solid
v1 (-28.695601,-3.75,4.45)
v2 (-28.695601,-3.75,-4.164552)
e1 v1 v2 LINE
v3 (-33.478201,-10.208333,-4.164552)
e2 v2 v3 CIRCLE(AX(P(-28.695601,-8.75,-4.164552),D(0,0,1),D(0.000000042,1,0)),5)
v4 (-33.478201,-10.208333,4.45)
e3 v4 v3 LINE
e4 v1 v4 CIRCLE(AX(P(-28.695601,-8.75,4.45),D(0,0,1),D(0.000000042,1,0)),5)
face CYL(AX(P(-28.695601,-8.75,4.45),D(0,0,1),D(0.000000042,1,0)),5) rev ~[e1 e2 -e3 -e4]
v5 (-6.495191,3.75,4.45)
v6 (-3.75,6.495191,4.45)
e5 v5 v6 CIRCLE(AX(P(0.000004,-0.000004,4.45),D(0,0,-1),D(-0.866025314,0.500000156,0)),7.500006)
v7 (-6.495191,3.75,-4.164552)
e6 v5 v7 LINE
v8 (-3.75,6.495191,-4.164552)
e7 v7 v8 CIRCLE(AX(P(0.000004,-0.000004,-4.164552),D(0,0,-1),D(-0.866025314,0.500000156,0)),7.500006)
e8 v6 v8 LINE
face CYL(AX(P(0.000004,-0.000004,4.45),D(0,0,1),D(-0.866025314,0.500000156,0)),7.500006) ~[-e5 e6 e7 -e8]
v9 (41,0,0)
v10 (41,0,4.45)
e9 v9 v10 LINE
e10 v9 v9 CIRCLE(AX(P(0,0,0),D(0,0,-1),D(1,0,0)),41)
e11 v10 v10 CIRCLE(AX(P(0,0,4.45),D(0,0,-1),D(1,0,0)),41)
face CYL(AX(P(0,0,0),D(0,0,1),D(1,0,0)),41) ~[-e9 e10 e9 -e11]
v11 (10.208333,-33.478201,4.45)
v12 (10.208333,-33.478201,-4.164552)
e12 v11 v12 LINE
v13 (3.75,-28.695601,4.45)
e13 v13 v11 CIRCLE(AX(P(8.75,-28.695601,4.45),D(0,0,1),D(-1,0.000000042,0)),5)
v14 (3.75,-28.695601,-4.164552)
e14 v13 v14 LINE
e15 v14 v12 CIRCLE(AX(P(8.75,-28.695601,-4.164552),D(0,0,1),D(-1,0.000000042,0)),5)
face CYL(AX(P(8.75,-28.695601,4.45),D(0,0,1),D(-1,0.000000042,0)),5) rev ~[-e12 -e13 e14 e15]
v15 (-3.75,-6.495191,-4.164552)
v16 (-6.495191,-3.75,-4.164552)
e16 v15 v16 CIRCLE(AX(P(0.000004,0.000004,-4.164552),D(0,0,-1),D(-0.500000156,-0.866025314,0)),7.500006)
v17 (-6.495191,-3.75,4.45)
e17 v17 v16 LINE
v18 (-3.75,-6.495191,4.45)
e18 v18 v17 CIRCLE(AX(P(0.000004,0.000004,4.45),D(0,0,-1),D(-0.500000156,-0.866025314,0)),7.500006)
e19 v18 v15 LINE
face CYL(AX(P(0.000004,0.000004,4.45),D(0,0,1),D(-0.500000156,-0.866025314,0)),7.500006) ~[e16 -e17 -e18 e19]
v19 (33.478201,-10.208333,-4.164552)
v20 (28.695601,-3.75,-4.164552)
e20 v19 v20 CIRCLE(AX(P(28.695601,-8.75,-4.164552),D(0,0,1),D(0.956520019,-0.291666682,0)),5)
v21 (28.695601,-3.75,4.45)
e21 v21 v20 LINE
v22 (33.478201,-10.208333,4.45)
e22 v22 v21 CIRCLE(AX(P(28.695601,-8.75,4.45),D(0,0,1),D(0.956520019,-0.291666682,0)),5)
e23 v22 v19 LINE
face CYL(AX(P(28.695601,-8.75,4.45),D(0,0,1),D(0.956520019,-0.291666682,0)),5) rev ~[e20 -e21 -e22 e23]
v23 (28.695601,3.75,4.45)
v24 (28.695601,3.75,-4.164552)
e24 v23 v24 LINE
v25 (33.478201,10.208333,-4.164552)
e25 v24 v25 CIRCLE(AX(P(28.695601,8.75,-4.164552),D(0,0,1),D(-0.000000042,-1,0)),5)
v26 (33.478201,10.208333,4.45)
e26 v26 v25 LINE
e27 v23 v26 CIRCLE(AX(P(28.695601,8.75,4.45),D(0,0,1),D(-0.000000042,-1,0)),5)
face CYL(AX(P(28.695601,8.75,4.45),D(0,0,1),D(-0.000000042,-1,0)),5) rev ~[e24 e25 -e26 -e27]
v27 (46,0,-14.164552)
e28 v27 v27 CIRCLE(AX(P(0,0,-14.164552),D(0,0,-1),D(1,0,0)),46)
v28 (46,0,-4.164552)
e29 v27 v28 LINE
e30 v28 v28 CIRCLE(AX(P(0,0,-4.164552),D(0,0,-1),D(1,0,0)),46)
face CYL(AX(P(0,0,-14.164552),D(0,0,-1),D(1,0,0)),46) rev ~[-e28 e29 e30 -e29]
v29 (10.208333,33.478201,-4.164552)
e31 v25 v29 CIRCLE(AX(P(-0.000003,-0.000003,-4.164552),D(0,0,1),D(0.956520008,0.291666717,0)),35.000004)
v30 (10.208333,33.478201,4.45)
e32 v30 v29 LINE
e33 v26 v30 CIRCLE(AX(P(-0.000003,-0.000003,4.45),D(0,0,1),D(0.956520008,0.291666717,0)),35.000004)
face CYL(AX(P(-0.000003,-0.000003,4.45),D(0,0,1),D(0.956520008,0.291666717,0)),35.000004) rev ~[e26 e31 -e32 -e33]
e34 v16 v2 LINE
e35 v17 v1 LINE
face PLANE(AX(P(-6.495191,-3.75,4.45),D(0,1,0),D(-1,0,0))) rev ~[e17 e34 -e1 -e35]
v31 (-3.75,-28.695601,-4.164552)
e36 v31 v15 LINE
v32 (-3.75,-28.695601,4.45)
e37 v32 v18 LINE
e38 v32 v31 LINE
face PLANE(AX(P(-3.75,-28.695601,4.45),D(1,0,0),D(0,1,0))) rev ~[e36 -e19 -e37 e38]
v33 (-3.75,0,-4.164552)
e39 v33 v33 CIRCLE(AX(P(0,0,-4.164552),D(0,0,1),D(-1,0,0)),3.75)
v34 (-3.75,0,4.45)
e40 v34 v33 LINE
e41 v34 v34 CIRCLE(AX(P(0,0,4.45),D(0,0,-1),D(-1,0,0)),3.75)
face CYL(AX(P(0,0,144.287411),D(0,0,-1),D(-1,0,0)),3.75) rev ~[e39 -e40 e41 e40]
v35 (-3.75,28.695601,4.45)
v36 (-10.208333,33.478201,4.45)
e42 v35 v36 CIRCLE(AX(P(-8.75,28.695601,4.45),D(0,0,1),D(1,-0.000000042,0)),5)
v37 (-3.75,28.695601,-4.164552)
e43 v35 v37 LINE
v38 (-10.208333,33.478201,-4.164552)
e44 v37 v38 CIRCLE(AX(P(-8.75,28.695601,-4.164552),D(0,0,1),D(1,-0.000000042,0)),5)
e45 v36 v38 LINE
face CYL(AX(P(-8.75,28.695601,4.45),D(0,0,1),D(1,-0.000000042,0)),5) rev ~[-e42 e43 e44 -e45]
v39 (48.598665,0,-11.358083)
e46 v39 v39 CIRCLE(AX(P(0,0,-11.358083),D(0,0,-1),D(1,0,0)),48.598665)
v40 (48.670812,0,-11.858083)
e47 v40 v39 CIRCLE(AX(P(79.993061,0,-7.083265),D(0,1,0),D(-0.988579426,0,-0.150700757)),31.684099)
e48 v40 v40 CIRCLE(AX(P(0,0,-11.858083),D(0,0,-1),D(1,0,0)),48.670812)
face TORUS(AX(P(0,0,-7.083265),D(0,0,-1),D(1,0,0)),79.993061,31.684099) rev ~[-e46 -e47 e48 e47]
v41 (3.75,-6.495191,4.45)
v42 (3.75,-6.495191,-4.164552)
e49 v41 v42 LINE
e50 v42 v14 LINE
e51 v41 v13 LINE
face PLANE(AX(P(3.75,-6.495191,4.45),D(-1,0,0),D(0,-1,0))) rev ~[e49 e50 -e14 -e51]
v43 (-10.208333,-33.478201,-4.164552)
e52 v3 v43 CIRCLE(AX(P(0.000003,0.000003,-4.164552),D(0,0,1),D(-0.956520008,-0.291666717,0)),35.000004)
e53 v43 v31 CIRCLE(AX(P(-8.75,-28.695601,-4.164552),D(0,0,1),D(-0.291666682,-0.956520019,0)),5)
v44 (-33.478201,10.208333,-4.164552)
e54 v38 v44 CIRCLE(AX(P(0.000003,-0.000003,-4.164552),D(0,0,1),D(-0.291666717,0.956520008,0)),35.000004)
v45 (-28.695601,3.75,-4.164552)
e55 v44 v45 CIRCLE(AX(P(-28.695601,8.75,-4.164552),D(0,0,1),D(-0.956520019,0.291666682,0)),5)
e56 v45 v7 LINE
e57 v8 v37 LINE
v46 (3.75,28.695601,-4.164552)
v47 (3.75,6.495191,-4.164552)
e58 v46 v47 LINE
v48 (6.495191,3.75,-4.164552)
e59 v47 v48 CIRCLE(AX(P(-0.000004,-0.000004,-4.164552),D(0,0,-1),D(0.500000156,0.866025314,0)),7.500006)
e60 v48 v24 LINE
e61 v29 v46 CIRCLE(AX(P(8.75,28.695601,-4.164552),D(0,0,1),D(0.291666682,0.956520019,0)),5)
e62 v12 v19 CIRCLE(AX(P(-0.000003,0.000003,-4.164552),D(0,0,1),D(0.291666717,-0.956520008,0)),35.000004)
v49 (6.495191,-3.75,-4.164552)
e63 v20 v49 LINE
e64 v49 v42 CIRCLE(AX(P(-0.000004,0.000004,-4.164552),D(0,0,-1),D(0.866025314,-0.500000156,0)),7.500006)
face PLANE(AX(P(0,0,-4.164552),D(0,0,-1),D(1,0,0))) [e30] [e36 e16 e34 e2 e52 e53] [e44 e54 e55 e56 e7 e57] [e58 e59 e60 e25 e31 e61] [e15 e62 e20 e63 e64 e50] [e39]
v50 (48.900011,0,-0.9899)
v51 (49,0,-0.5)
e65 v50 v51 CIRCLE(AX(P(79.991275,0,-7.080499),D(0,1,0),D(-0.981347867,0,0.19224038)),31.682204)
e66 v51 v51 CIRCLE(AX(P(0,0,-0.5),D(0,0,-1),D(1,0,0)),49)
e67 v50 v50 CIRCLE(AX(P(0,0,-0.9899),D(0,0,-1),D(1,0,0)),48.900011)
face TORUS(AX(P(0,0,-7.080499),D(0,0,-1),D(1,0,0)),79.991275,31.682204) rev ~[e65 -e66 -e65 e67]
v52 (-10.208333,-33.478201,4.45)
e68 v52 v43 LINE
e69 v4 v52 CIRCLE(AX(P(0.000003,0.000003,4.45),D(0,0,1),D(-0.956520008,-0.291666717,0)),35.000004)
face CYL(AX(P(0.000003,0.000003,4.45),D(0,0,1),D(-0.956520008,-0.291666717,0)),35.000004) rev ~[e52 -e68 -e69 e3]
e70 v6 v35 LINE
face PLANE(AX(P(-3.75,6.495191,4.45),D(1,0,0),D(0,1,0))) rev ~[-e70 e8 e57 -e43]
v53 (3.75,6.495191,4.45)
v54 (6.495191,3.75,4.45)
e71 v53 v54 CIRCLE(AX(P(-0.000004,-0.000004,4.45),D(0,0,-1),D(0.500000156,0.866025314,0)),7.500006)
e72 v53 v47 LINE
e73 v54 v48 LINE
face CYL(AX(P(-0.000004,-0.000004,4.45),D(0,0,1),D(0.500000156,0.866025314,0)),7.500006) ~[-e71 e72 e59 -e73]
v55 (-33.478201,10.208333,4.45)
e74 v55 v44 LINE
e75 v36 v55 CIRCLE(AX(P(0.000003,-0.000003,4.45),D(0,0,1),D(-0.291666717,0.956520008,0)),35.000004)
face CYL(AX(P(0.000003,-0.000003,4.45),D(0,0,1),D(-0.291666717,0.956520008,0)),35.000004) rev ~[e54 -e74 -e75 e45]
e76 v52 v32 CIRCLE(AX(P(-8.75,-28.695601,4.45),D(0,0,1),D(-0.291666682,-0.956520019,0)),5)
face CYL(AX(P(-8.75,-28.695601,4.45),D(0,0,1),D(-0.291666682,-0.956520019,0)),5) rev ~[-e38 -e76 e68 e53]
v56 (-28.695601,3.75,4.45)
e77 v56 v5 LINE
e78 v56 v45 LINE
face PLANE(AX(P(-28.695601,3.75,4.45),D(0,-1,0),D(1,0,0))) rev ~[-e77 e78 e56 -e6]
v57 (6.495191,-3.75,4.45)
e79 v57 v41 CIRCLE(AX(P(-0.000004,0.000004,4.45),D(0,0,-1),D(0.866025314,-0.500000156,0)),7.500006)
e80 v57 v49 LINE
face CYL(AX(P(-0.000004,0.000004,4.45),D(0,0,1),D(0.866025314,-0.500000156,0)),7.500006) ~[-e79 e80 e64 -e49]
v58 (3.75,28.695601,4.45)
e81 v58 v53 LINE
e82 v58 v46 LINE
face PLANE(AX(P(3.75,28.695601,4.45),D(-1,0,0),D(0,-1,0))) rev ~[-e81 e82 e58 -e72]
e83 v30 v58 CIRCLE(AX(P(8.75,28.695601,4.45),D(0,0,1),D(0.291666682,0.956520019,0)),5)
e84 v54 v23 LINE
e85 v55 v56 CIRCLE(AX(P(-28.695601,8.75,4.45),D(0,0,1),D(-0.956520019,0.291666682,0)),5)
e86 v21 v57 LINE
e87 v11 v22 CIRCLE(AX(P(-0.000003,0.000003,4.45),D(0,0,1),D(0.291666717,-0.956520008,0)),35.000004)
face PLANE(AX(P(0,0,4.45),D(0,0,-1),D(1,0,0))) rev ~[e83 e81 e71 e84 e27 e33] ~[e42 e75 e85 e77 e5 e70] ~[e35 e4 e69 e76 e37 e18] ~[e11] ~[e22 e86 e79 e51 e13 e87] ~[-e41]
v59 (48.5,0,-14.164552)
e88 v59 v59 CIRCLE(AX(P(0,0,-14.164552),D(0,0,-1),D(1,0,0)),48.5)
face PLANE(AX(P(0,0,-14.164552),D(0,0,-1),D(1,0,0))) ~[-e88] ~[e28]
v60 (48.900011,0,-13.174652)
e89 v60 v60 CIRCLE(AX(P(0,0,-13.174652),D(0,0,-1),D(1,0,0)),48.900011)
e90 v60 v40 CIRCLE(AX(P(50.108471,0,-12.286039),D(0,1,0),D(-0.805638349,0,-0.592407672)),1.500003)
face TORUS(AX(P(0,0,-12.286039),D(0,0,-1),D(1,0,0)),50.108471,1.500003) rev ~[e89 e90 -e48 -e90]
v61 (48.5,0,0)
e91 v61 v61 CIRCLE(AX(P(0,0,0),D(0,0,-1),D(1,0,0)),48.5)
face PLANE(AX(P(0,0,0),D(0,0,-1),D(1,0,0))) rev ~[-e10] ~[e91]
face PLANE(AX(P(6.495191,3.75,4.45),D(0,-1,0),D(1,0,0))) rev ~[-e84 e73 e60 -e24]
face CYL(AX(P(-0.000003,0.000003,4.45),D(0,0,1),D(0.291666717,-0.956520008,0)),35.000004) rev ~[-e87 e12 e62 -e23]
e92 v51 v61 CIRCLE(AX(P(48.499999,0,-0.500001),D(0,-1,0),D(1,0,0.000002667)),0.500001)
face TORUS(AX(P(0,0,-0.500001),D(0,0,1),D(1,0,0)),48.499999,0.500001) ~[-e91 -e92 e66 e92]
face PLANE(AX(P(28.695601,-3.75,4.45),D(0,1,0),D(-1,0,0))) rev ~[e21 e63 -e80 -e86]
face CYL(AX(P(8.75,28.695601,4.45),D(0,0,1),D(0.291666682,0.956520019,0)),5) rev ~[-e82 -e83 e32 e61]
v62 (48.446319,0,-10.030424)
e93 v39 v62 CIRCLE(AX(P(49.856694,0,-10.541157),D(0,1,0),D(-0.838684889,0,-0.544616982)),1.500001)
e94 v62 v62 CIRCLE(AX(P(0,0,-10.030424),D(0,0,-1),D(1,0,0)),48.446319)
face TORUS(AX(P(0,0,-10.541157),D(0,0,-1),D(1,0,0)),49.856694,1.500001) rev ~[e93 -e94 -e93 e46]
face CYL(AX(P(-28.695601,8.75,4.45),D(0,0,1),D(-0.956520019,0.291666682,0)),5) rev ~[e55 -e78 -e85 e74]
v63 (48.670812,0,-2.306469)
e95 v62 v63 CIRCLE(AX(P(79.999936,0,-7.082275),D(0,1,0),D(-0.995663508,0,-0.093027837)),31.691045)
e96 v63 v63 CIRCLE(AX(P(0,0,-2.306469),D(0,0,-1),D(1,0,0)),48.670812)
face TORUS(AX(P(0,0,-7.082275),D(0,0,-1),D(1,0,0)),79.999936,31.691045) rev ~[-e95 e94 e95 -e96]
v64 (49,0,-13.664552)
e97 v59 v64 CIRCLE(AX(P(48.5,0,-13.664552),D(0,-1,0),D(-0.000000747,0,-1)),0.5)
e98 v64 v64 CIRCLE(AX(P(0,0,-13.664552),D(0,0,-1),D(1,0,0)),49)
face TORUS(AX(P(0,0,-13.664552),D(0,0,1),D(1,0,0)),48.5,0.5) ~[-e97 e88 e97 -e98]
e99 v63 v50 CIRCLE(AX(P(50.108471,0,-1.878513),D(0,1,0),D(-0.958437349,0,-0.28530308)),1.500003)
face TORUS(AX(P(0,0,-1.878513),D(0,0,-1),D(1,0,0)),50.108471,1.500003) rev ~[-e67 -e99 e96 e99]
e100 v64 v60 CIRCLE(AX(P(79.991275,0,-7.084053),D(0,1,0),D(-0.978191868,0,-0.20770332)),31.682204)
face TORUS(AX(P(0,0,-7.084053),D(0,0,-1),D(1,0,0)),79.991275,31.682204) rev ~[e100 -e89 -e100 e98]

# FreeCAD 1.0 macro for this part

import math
import FreeCAD as App
import Part
import Sketcher

V = App.Vector

doc = App.newDocument("Part")
body = doc.addObject("PartDesign::Body", "Body")

# Sketch on XZ plane
sketch1 = body.newObject("Sketcher::SketchObject", "Sketch")
sketch1.AttachmentSupport = (doc.getObject("XZ_Plane"), [""])
sketch1.MapMode = "FlatFace"
sketch1.addGeometry(Part.LineSegment(V(0, 4.45, 0), V(0, -14.16, 0)), False)
sketch1.addGeometry(Part.LineSegment(V(0, -14.16, 0), V(48.5, -14.16, 0)), False)
sketch1.addGeometry(Part.ArcOfCircle(Part.Circle(V(48.5, -13.66, 0), V(0, 0, 1), 0.5), math.radians(-90), math.radians(0)), False)
sketch1.addGeometry(Part.ArcOfCircle(Part.Circle(V(79.99, -7.08, 0), V(0, 0, 1), 31.68), math.radians(-168.92), math.radians(-168.01)), False)
sketch1.addGeometry(Part.ArcOfCircle(Part.Circle(V(50.11, -12.29, 0), V(0, 0, 1), 1.5), math.radians(163), math.radians(216)), False)
sketch1.addGeometry(Part.ArcOfCircle(Part.Circle(V(79.99, -7.08, 0), V(0, 0, 1), 31.68), math.radians(-172.25), math.radians(-171.33)), False)
sketch1.addGeometry(Part.ArcOfCircle(Part.Circle(V(49.86, -10.54, 0), V(0, 0, 1), 1.5), math.radians(160), math.radians(213)), False)
sketch1.addGeometry(Part.ArcOfCircle(Part.Circle(V(80, -7.08, 0), V(0, 0, 1), 31.69), math.radians(171.33), math.radians(185.34)), False)
sketch1.addGeometry(Part.ArcOfCircle(Part.Circle(V(50.11, -1.88, 0), V(0, 0, 1), 1.5), math.radians(144), math.radians(197)), False)
sketch1.addGeometry(Part.ArcOfCircle(Part.Circle(V(79.99, -7.08, 0), V(0, 0, 1), 31.68), math.radians(168.01), math.radians(168.92)), False)
sketch1.addGeometry(Part.ArcOfCircle(Part.Circle(V(48.5, -0.5, 0), V(0, 0, 1), 0.5), math.radians(0), math.radians(90)), False)
sketch1.addGeometry(Part.LineSegment(V(48.5, 0, 0), V(41, 0, 0)), False)
sketch1.addGeometry(Part.LineSegment(V(41, 0, 0), V(41, 4.45, 0)), False)
sketch1.addGeometry(Part.LineSegment(V(41, 4.45, 0), V(0, 4.45, 0)), False)
sketch1.addConstraint(Sketcher.Constraint("Coincident", 0, 2, 1, 1))
sketch1.addConstraint(Sketcher.Constraint("Tangent", 1, 2, 2, 1))
sketch1.addConstraint(Sketcher.Constraint("Coincident", 2, 2, 3, 2))
sketch1.addConstraint(Sketcher.Constraint("Coincident", 3, 1, 4, 2))
sketch1.addConstraint(Sketcher.Constraint("Coincident", 4, 1, 5, 2))
sketch1.addConstraint(Sketcher.Constraint("Coincident", 5, 1, 6, 2))
sketch1.addConstraint(Sketcher.Constraint("Coincident", 6, 1, 7, 2))
sketch1.addConstraint(Sketcher.Constraint("Coincident", 7, 1, 8, 2))
sketch1.addConstraint(Sketcher.Constraint("Coincident", 8, 1, 9, 2))
sketch1.addConstraint(Sketcher.Constraint("Coincident", 9, 1, 10, 1))
sketch1.addConstraint(Sketcher.Constraint("Coincident", 10, 2, 11, 1))
sketch1.addConstraint(Sketcher.Constraint("Coincident", 11, 2, 12, 1))
sketch1.addConstraint(Sketcher.Constraint("Coincident", 12, 2, 13, 1))
sketch1.addConstraint(Sketcher.Constraint("Coincident", 13, 2, 0, 1))
sketch1.addConstraint(Sketcher.Constraint("Vertical", 0))
sketch1.addConstraint(Sketcher.Constraint("Horizontal", 1))
sketch1.addConstraint(Sketcher.Constraint("Horizontal", 11))
sketch1.addConstraint(Sketcher.Constraint("Vertical", 12))
sketch1.addConstraint(Sketcher.Constraint("Horizontal", 13))
sketch1.addConstraint(Sketcher.Constraint("Equal", 4, 6))
sketch1.addConstraint(Sketcher.Constraint("Equal", 6, 8))
sketch1.addConstraint(Sketcher.Constraint("Equal", 3, 9))
sketch1.addConstraint(Sketcher.Constraint("Equal", 2, 10))
sketch1.addConstraint(Sketcher.Constraint("PointOnObject", 0, 2, -2))
sketch1.addConstraint(Sketcher.Constraint("PointOnObject", 10, 2, -1))
sketch1.addConstraint(Sketcher.Constraint("Horizontal", 10, 3, 9, 1))
sketch1.addConstraint(Sketcher.Constraint("Vertical", 4, 3, 8, 3))
sketch1.addConstraint(Sketcher.Constraint("Vertical", 3, 3, 9, 3))
sketch1.addConstraint(Sketcher.Constraint("Vertical", 2, 3, 10, 3))
sketch1.addConstraint(Sketcher.Constraint("Vertical", 4, 1, 7, 1))
sketch1.addConstraint(Sketcher.Constraint("Vertical", 3, 1, 8, 1))
sketch1.addConstraint(Sketcher.Constraint("Vertical", 1, 2, 10, 2))
sketch1.addConstraint(Sketcher.Constraint("Radius", 2, 0.5))
sketch1.addConstraint(Sketcher.Constraint("Radius", 6, 1.500001))
sketch1.addConstraint(Sketcher.Constraint("DistanceX", 13, 2, 13, 1, 41.0))
sketch1.addConstraint(Sketcher.Constraint("DistanceX", 1, 1, 1, 2, 48.5))
sketch1.addConstraint(Sketcher.Constraint("DistanceY", 12, 1, 12, 2, 4.45))
sketch1.addConstraint(Sketcher.Constraint("Radius", 5, 31.684099))
sketch1.addConstraint(Sketcher.Constraint("DistanceY", 1, 2, 2, 2, 0.5))
sketch1.addConstraint(Sketcher.Constraint("DistanceY", 4, 1, 5, 1, 0.5))
sketch1.addConstraint(Sketcher.Constraint("Radius", 3, 31.682204))
sketch1.addConstraint(Sketcher.Constraint("Radius", 7, 31.691045))
sketch1.addConstraint(Sketcher.Constraint("DistanceY", 0, 2, 0, 1, 18.614552))
sketch1.addConstraint(Sketcher.Constraint("DistanceY", 9, 3, -1, 1, 7.080499))
sketch1.addConstraint(Sketcher.Constraint("DistanceY", 8, 1, -1, 1, 0.9899))
sketch1.addConstraint(Sketcher.Constraint("DistanceX", 4, 1, 3, 1, 0.229199))
sketch1.addConstraint(Sketcher.Constraint("DistanceX", -1, 1, 4, 3, 50.108471))
sketch1.addConstraint(Sketcher.Constraint("DistanceX", -1, 1, 5, 3, 79.993061))
sketch1.addConstraint(Sketcher.Constraint("DistanceX", -1, 1, 6, 1, 48.446319))
sketch1.addConstraint(Sketcher.Constraint("DistanceY", 4, 3, 6, 3, 1.744882))
revolution = body.newObject("PartDesign::Revolution", "Revolution")
revolution.Profile = sketch1
revolution.ReferenceAxis = (sketch1, ["V_Axis"])
revolution.Angle = 360

# Sketch on XY plane
sketch2 = body.newObject("Sketcher::SketchObject", "Sketch001")
sketch2.AttachmentSupport = (doc.getObject("XY_Plane"), [""])
sketch2.MapMode = "FlatFace"
sketch2.AttachmentOffset = App.Placement(V(0, 0, 4.45), App.Rotation())
sketch2.addGeometry(Part.Circle(V(0, 0, 0), V(0, 0, 1), 3.8), False)
sketch2.addConstraint(Sketcher.Constraint("Coincident", 0, 3, -1, 1))
sketch2.addConstraint(Sketcher.Constraint("Diameter", 0, 7.5))
doc.recompute()
hole = body.newObject("PartDesign::Hole", "Hole")
hole.Profile = sketch2
hole.ThreadType = "None"
hole.Diameter = 7.5
hole.DepthType = "ThroughAll"

# Sketch on XY plane
sketch3 = body.newObject("Sketcher::SketchObject", "Sketch002")
sketch3.AttachmentSupport = (doc.getObject("XY_Plane"), [""])
sketch3.MapMode = "FlatFace"
sketch3.AttachmentOffset = App.Placement(V(0, 0, 4.45), App.Rotation())
sketch3.addGeometry(Part.ArcOfCircle(Part.Circle(V(-8.7, 28.7, 0), V(0, 0, 1), 5), math.radians(0), math.radians(107)), False)
sketch3.addGeometry(Part.ArcOfCircle(Part.Circle(V(0, 0, 0), V(0, 0, 1), 35), math.radians(107), math.radians(163)), False)
sketch3.addGeometry(Part.ArcOfCircle(Part.Circle(V(-28.7, 8.7, 0), V(0, 0, 1), 5), math.radians(163), math.radians(270)), False)
sketch3.addGeometry(Part.LineSegment(V(-28.7, 3.8, 0), V(-6.5, 3.8, 0)), False)
sketch3.addGeometry(Part.ArcOfCircle(Part.Circle(V(0, 0, 0), V(0, 0, 1), 7.5), math.radians(120), math.radians(150)), False)
sketch3.addGeometry(Part.LineSegment(V(-3.8, 6.5, 0), V(-3.8, 28.7, 0)), False)
sketch3.addGeometry(Part.LineSegment(V(-3.8, -28.7, 0), V(-3.8, -6.5, 0)), False)
sketch3.addGeometry(Part.ArcOfCircle(Part.Circle(V(0, 0, 0), V(0, 0, 1), 7.5), math.radians(-150), math.radians(-120)), False)
sketch3.addGeometry(Part.LineSegment(V(-6.5, -3.8, 0), V(-28.7, -3.8, 0)), False)
sketch3.addGeometry(Part.ArcOfCircle(Part.Circle(V(-28.7, -8.7, 0), V(0, 0, 1), 5), math.radians(90), math.radians(197)), False)
sketch3.addGeometry(Part.ArcOfCircle(Part.Circle(V(0, 0, 0), V(0, 0, 1), 35), math.radians(-163), math.radians(-107)), False)
sketch3.addGeometry(Part.ArcOfCircle(Part.Circle(V(-8.7, -28.7, 0), V(0, 0, 1), 5), math.radians(-107), math.radians(0)), False)
sketch3.addGeometry(Part.ArcOfCircle(Part.Circle(V(28.7, -8.7, 0), V(0, 0, 1), 5), math.radians(-17), math.radians(90)), False)
sketch3.addGeometry(Part.LineSegment(V(28.7, -3.8, 0), V(6.5, -3.8, 0)), False)
sketch3.addGeometry(Part.ArcOfCircle(Part.Circle(V(0, 0, 0), V(0, 0, 1), 7.5), math.radians(-60), math.radians(-30)), False)
sketch3.addGeometry(Part.LineSegment(V(3.8, -6.5, 0), V(3.8, -28.7, 0)), False)
sketch3.addGeometry(Part.ArcOfCircle(Part.Circle(V(8.7, -28.7, 0), V(0, 0, 1), 5), math.radians(180), math.radians(287)), False)
sketch3.addGeometry(Part.ArcOfCircle(Part.Circle(V(0, 0, 0), V(0, 0, 1), 35), math.radians(-73), math.radians(-17)), False)
sketch3.addGeometry(Part.ArcOfCircle(Part.Circle(V(8.7, 28.7, 0), V(0, 0, 1), 5), math.radians(73), math.radians(180)), False)
sketch3.addGeometry(Part.LineSegment(V(3.8, 28.7, 0), V(3.8, 6.5, 0)), False)
sketch3.addGeometry(Part.ArcOfCircle(Part.Circle(V(0, 0, 0), V(0, 0, 1), 7.5), math.radians(30), math.radians(60)), False)
sketch3.addGeometry(Part.LineSegment(V(6.5, 3.8, 0), V(28.7, 3.8, 0)), False)
sketch3.addGeometry(Part.ArcOfCircle(Part.Circle(V(28.7, 8.7, 0), V(0, 0, 1), 5), math.radians(-90), math.radians(17)), False)
sketch3.addGeometry(Part.ArcOfCircle(Part.Circle(V(0, 0, 0), V(0, 0, 1), 35), math.radians(17), math.radians(73)), False)
sketch3.addConstraint(Sketcher.Constraint("Tangent", 0, 2, 1, 1))
sketch3.addConstraint(Sketcher.Constraint("Tangent", 1, 2, 2, 1))
sketch3.addConstraint(Sketcher.Constraint("Tangent", 2, 2, 3, 1))
sketch3.addConstraint(Sketcher.Constraint("Coincident", 3, 2, 4, 2))
sketch3.addConstraint(Sketcher.Constraint("Coincident", 4, 1, 5, 1))
sketch3.addConstraint(Sketcher.Constraint("Tangent", 5, 2, 0, 1))
sketch3.addConstraint(Sketcher.Constraint("Coincident", 6, 2, 7, 2))
sketch3.addConstraint(Sketcher.Constraint("Coincident", 7, 1, 8, 1))
sketch3.addConstraint(Sketcher.Constraint("Tangent", 8, 2, 9, 1))
sketch3.addConstraint(Sketcher.Constraint("Tangent", 9, 2, 10, 1))
sketch3.addConstraint(Sketcher.Constraint("Tangent", 10, 2, 11, 1))
sketch3.addConstraint(Sketcher.Constraint("Tangent", 11, 2, 6, 1))
sketch3.addConstraint(Sketcher.Constraint("Tangent", 12, 2, 13, 1))
sketch3.addConstraint(Sketcher.Constraint("Coincident", 13, 2, 14, 2))
sketch3.addConstraint(Sketcher.Constraint("Coincident", 14, 1, 15, 1))
sketch3.addConstraint(Sketcher.Constraint("Tangent", 15, 2, 16, 1))
sketch3.addConstraint(Sketcher.Constraint("Tangent", 16, 2, 17, 1))
sketch3.addConstraint(Sketcher.Constraint("Tangent", 17, 2, 12, 1))
sketch3.addConstraint(Sketcher.Constraint("Tangent", 18, 2, 19, 1))
sketch3.addConstraint(Sketcher.Constraint("Coincident", 19, 2, 20, 2))
sketch3.addConstraint(Sketcher.Constraint("Coincident", 20, 1, 21, 1))
sketch3.addConstraint(Sketcher.Constraint("Tangent", 21, 2, 22, 1))
sketch3.addConstraint(Sketcher.Constraint("Tangent", 22, 2, 23, 1))
sketch3.addConstraint(Sketcher.Constraint("Tangent", 23, 2, 18, 1))
sketch3.addConstraint(Sketcher.Constraint("Horizontal", 3))
sketch3.addConstraint(Sketcher.Constraint("Vertical", 5))
sketch3.addConstraint(Sketcher.Constraint("Vertical", 6))
sketch3.addConstraint(Sketcher.Constraint("Horizontal", 8))
sketch3.addConstraint(Sketcher.Constraint("Horizontal", 13))
sketch3.addConstraint(Sketcher.Constraint("Vertical", 15))
sketch3.addConstraint(Sketcher.Constraint("Vertical", 19))
sketch3.addConstraint(Sketcher.Constraint("Horizontal", 21))
sketch3.addConstraint(Sketcher.Constraint("Coincident", 1, 3, -1, 1))
sketch3.addConstraint(Sketcher.Constraint("Coincident", 4, 3, -1, 1))
sketch3.addConstraint(Sketcher.Constraint("Coincident", 7, 3, -1, 1))
sketch3.addConstraint(Sketcher.Constraint("Coincident", 10, 3, -1, 1))
sketch3.addConstraint(Sketcher.Constraint("Coincident", 14, 3, -1, 1))
sketch3.addConstraint(Sketcher.Constraint("Coincident", 17, 3, -1, 1))
sketch3.addConstraint(Sketcher.Constraint("Coincident", 20, 3, -1, 1))
sketch3.addConstraint(Sketcher.Constraint("Coincident", 23, 3, -1, 1))
sketch3.addConstraint(Sketcher.Constraint("Equal", 0, 2))
sketch3.addConstraint(Sketcher.Constraint("Equal", 4, 7))
sketch3.addConstraint(Sketcher.Constraint("Equal", 2, 9))
sketch3.addConstraint(Sketcher.Constraint("Equal", 1, 10))
sketch3.addConstraint(Sketcher.Constraint("Equal", 9, 11))
sketch3.addConstraint(Sketcher.Constraint("Equal", 11, 12))
sketch3.addConstraint(Sketcher.Constraint("Equal", 7, 14))
sketch3.addConstraint(Sketcher.Constraint("Equal", 12, 16))
sketch3.addConstraint(Sketcher.Constraint("Equal", 10, 17))
sketch3.addConstraint(Sketcher.Constraint("Equal", 16, 18))
sketch3.addConstraint(Sketcher.Constraint("Equal", 14, 20))
sketch3.addConstraint(Sketcher.Constraint("Equal", 18, 22))
sketch3.addConstraint(Sketcher.Constraint("Equal", 17, 23))
sketch3.addConstraint(Sketcher.Constraint("Horizontal", 9, 3, 12, 3))
sketch3.addConstraint(Sketcher.Constraint("Horizontal", 11, 3, 16, 3))
sketch3.addConstraint(Sketcher.Constraint("Horizontal", 0, 3, 18, 3))
sketch3.addConstraint(Sketcher.Constraint("Horizontal", 2, 3, 22, 3))
sketch3.addConstraint(Sketcher.Constraint("Vertical", 2, 3, 9, 3))
sketch3.addConstraint(Sketcher.Constraint("Vertical", 0, 3, 11, 3))
sketch3.addConstraint(Sketcher.Constraint("Equal", 21, 5))
sketch3.addConstraint(Sketcher.Constraint("Radius", 0, 5.0))
sketch3.addConstraint(Sketcher.Constraint("DistanceY", 9, 3, 2, 3, 17.499999))
sketch3.addConstraint(Sketcher.Constraint("Radius", 1, 35.000004))
sketch3.addConstraint(Sketcher.Constraint("Radius", 4, 7.500006))
pocket1 = body.newObject("PartDesign::Pocket", "Pocket")
pocket1.Profile = sketch3
pocket1.Length = 56.015512

# Sketch on XY plane
sketch4 = body.newObject("Sketcher::SketchObject", "Sketch003")
sketch4.AttachmentSupport = (doc.getObject("XY_Plane"), [""])
sketch4.MapMode = "FlatFace"
sketch4.AttachmentOffset = App.Placement(V(0, 0, -14.164552), App.Rotation())
sketch4.addGeometry(Part.Circle(V(0, 0, 0), V(0, 0, 1), 46), False)
sketch4.addGeometry(Part.LineSegment(V(-28.7, 3.8, 0), V(-6.5, 3.8, 0)), False)
sketch4.addGeometry(Part.ArcOfCircle(Part.Circle(V(0, 0, 0), V(0, 0, 1), 7.5), math.radians(120), math.radians(150)), False)
sketch4.addGeometry(Part.LineSegment(V(-3.8, 6.5, 0), V(-3.8, 28.7, 0)), False)
sketch4.addGeometry(Part.ArcOfCircle(Part.Circle(V(-8.7, 28.7, 0), V(0, 0, 1), 5), math.radians(0), math.radians(107)), False)
sketch4.addGeometry(Part.ArcOfCircle(Part.Circle(V(0, 0, 0), V(0, 0, 1), 35), math.radians(107), math.radians(163)), False)
sketch4.addGeometry(Part.ArcOfCircle(Part.Circle(V(-28.7, 8.7, 0), V(0, 0, 1), 5), math.radians(163), math.radians(270)), False)
sketch4.addGeometry(Part.ArcOfCircle(Part.Circle(V(28.7, 8.7, 0), V(0, 0, 1), 5), math.radians(-90), math.radians(17)), False)
sketch4.addGeometry(Part.ArcOfCircle(Part.Circle(V(0, 0, 0), V(0, 0, 1), 35), math.radians(17), math.radians(73)), False)
sketch4.addGeometry(Part.ArcOfCircle(Part.Circle(V(8.7, 28.7, 0), V(0, 0, 1), 5), math.radians(73), math.radians(180)), False)
sketch4.addGeometry(Part.LineSegment(V(3.8, 28.7, 0), V(3.8, 6.5, 0)), False)
sketch4.addGeometry(Part.ArcOfCircle(Part.Circle(V(0, 0, 0), V(0, 0, 1), 7.5), math.radians(30), math.radians(60)), False)
sketch4.addGeometry(Part.LineSegment(V(6.5, 3.8, 0), V(28.7, 3.8, 0)), False)
sketch4.addGeometry(Part.ArcOfCircle(Part.Circle(V(-28.7, -8.7, 0), V(0, 0, 1), 5), math.radians(90), math.radians(197)), False)
sketch4.addGeometry(Part.ArcOfCircle(Part.Circle(V(0, 0, 0), V(0, 0, 1), 35), math.radians(-163), math.radians(-107)), False)
sketch4.addGeometry(Part.ArcOfCircle(Part.Circle(V(-8.7, -28.7, 0), V(0, 0, 1), 5), math.radians(-107), math.radians(0)), False)
sketch4.addGeometry(Part.LineSegment(V(-3.8, -28.7, 0), V(-3.8, -6.5, 0)), False)
sketch4.addGeometry(Part.ArcOfCircle(Part.Circle(V(0, 0, 0), V(0, 0, 1), 7.5), math.radians(-150), math.radians(-120)), False)
sketch4.addGeometry(Part.LineSegment(V(-6.5, -3.8, 0), V(-28.7, -3.8, 0)), False)
sketch4.addGeometry(Part.Circle(V(0, 0, 0), V(0, 0, 1), 3.8), False)
sketch4.addGeometry(Part.ArcOfCircle(Part.Circle(V(8.7, -28.7, 0), V(0, 0, 1), 5), math.radians(180), math.radians(287)), False)
sketch4.addGeometry(Part.ArcOfCircle(Part.Circle(V(0, 0, 0), V(0, 0, 1), 35), math.radians(-73), math.radians(-17)), False)
sketch4.addGeometry(Part.ArcOfCircle(Part.Circle(V(28.7, -8.7, 0), V(0, 0, 1), 5), math.radians(-17), math.radians(90)), False)
sketch4.addGeometry(Part.LineSegment(V(28.7, -3.8, 0), V(6.5, -3.8, 0)), False)
sketch4.addGeometry(Part.ArcOfCircle(Part.Circle(V(0, 0, 0), V(0, 0, 1), 7.5), math.radians(-60), math.radians(-30)), False)
sketch4.addGeometry(Part.LineSegment(V(3.8, -6.5, 0), V(3.8, -28.7, 0)), False)
sketch4.addConstraint(Sketcher.Constraint("Coincident", 1, 2, 2, 2))
sketch4.addConstraint(Sketcher.Constraint("Coincident", 2, 1, 3, 1))
sketch4.addConstraint(Sketcher.Constraint("Tangent", 3, 2, 4, 1))
sketch4.addConstraint(Sketcher.Constraint("Tangent", 4, 2, 5, 1))
sketch4.addConstraint(Sketcher.Constraint("Tangent", 5, 2, 6, 1))
sketch4.addConstraint(Sketcher.Constraint("Tangent", 6, 2, 1, 1))
sketch4.addConstraint(Sketcher.Constraint("Tangent", 7, 2, 8, 1))
sketch4.addConstraint(Sketcher.Constraint("Tangent", 8, 2, 9, 1))
sketch4.addConstraint(Sketcher.Constraint("Tangent", 9, 2, 10, 1))
sketch4.addConstraint(Sketcher.Constraint("Coincident", 10, 2, 11, 2))
sketch4.addConstraint(Sketcher.Constraint("Coincident", 11, 1, 12, 1))
sketch4.addConstraint(Sketcher.Constraint("Tangent", 12, 2, 7, 1))
sketch4.addConstraint(Sketcher.Constraint("Tangent", 13, 2, 14, 1))
sketch4.addConstraint(Sketcher.Constraint("Tangent", 14, 2, 15, 1))
sketch4.addConstraint(Sketcher.Constraint("Tangent", 15, 2, 16, 1))
sketch4.addConstraint(Sketcher.Constraint("Coincident", 16, 2, 17, 2))
sketch4.addConstraint(Sketcher.Constraint("Coincident", 17, 1, 18, 1))
sketch4.addConstraint(Sketcher.Constraint("Tangent", 18, 2, 13, 1))
sketch4.addConstraint(Sketcher.Constraint("Tangent", 20, 2, 21, 1))
sketch4.addConstraint(Sketcher.Constraint("Tangent", 21, 2, 22, 1))
sketch4.addConstraint(Sketcher.Constraint("Tangent", 22, 2, 23, 1))
sketch4.addConstraint(Sketcher.Constraint("Coincident", 23, 2, 24, 2))
sketch4.addConstraint(Sketcher.Constraint("Coincident", 24, 1, 25, 1))
sketch4.addConstraint(Sketcher.Constraint("Tangent", 25, 2, 20, 1))
sketch4.addConstraint(Sketcher.Constraint("Horizontal", 1))
sketch4.addConstraint(Sketcher.Constraint("Vertical", 3))
sketch4.addConstraint(Sketcher.Constraint("Vertical", 10))
sketch4.addConstraint(Sketcher.Constraint("Horizontal", 12))
sketch4.addConstraint(Sketcher.Constraint("Vertical", 16))
sketch4.addConstraint(Sketcher.Constraint("Horizontal", 18))
sketch4.addConstraint(Sketcher.Constraint("Horizontal", 23))
sketch4.addConstraint(Sketcher.Constraint("Vertical", 25))
sketch4.addConstraint(Sketcher.Constraint("Coincident", 0, 3, -1, 1))
sketch4.addConstraint(Sketcher.Constraint("Coincident", 2, 3, -1, 1))
sketch4.addConstraint(Sketcher.Constraint("Coincident", 5, 3, -1, 1))
sketch4.addConstraint(Sketcher.Constraint("Coincident", 8, 3, -1, 1))
sketch4.addConstraint(Sketcher.Constraint("Coincident", 11, 3, -1, 1))
sketch4.addConstraint(Sketcher.Constraint("Coincident", 14, 3, -1, 1))
sketch4.addConstraint(Sketcher.Constraint("Coincident", 17, 3, -1, 1))
sketch4.addConstraint(Sketcher.Constraint("Coincident", 19, 3, -1, 1))
sketch4.addConstraint(Sketcher.Constraint("Coincident", 21, 3, -1, 1))
sketch4.addConstraint(Sketcher.Constraint("Coincident", 24, 3, -1, 1))
sketch4.addConstraint(Sketcher.Constraint("Equal", 4, 6))
sketch4.addConstraint(Sketcher.Constraint("Equal", 6, 7))
sketch4.addConstraint(Sketcher.Constraint("Equal", 5, 8))
sketch4.addConstraint(Sketcher.Constraint("Equal", 7, 9))
sketch4.addConstraint(Sketcher.Constraint("Equal", 2, 11))
sketch4.addConstraint(Sketcher.Constraint("Equal", 9, 13))
sketch4.addConstraint(Sketcher.Constraint("Equal", 8, 14))
sketch4.addConstraint(Sketcher.Constraint("Equal", 13, 15))
sketch4.addConstraint(Sketcher.Constraint("Equal", 11, 17))
sketch4.addConstraint(Sketcher.Constraint("Equal", 15, 20))
sketch4.addConstraint(Sketcher.Constraint("Equal", 14, 21))
sketch4.addConstraint(Sketcher.Constraint("Equal", 20, 22))
sketch4.addConstraint(Sketcher.Constraint("Equal", 17, 24))
sketch4.addConstraint(Sketcher.Constraint("Horizontal", 6, 3, 7, 3))
sketch4.addConstraint(Sketcher.Constraint("Horizontal", 4, 3, 9, 3))
sketch4.addConstraint(Sketcher.Constraint("Horizontal", 15, 3, 20, 3))
sketch4.addConstraint(Sketcher.Constraint("Horizontal", 13, 3, 22, 3))
sketch4.addConstraint(Sketcher.Constraint("Vertical", 6, 3, 13, 3))
sketch4.addConstraint(Sketcher.Constraint("Vertical", 4, 3, 15, 3))
sketch4.addConstraint(Sketcher.Constraint("Equal", 23, 3))
sketch4.addConstraint(Sketcher.Constraint("Diameter", 0, 92.0))
sketch4.addConstraint(Sketcher.Constraint("Radius", 4, 5.0))
sketch4.addConstraint(Sketcher.Constraint("Diameter", 19, 7.5))
sketch4.addConstraint(Sketcher.Constraint("DistanceX", 4, 3, 9, 3, 17.499999))
sketch4.addConstraint(Sketcher.Constraint("Radius", 2, 7.500006))
sketch4.addConstraint(Sketcher.Constraint("Radius", 5, 35.000004))
pocket2 = body.newObject("PartDesign::Pocket", "Pocket001")
pocket2.Profile = sketch4
pocket2.Length = 10
pocket2.Reversed = True

doc.recompute()
